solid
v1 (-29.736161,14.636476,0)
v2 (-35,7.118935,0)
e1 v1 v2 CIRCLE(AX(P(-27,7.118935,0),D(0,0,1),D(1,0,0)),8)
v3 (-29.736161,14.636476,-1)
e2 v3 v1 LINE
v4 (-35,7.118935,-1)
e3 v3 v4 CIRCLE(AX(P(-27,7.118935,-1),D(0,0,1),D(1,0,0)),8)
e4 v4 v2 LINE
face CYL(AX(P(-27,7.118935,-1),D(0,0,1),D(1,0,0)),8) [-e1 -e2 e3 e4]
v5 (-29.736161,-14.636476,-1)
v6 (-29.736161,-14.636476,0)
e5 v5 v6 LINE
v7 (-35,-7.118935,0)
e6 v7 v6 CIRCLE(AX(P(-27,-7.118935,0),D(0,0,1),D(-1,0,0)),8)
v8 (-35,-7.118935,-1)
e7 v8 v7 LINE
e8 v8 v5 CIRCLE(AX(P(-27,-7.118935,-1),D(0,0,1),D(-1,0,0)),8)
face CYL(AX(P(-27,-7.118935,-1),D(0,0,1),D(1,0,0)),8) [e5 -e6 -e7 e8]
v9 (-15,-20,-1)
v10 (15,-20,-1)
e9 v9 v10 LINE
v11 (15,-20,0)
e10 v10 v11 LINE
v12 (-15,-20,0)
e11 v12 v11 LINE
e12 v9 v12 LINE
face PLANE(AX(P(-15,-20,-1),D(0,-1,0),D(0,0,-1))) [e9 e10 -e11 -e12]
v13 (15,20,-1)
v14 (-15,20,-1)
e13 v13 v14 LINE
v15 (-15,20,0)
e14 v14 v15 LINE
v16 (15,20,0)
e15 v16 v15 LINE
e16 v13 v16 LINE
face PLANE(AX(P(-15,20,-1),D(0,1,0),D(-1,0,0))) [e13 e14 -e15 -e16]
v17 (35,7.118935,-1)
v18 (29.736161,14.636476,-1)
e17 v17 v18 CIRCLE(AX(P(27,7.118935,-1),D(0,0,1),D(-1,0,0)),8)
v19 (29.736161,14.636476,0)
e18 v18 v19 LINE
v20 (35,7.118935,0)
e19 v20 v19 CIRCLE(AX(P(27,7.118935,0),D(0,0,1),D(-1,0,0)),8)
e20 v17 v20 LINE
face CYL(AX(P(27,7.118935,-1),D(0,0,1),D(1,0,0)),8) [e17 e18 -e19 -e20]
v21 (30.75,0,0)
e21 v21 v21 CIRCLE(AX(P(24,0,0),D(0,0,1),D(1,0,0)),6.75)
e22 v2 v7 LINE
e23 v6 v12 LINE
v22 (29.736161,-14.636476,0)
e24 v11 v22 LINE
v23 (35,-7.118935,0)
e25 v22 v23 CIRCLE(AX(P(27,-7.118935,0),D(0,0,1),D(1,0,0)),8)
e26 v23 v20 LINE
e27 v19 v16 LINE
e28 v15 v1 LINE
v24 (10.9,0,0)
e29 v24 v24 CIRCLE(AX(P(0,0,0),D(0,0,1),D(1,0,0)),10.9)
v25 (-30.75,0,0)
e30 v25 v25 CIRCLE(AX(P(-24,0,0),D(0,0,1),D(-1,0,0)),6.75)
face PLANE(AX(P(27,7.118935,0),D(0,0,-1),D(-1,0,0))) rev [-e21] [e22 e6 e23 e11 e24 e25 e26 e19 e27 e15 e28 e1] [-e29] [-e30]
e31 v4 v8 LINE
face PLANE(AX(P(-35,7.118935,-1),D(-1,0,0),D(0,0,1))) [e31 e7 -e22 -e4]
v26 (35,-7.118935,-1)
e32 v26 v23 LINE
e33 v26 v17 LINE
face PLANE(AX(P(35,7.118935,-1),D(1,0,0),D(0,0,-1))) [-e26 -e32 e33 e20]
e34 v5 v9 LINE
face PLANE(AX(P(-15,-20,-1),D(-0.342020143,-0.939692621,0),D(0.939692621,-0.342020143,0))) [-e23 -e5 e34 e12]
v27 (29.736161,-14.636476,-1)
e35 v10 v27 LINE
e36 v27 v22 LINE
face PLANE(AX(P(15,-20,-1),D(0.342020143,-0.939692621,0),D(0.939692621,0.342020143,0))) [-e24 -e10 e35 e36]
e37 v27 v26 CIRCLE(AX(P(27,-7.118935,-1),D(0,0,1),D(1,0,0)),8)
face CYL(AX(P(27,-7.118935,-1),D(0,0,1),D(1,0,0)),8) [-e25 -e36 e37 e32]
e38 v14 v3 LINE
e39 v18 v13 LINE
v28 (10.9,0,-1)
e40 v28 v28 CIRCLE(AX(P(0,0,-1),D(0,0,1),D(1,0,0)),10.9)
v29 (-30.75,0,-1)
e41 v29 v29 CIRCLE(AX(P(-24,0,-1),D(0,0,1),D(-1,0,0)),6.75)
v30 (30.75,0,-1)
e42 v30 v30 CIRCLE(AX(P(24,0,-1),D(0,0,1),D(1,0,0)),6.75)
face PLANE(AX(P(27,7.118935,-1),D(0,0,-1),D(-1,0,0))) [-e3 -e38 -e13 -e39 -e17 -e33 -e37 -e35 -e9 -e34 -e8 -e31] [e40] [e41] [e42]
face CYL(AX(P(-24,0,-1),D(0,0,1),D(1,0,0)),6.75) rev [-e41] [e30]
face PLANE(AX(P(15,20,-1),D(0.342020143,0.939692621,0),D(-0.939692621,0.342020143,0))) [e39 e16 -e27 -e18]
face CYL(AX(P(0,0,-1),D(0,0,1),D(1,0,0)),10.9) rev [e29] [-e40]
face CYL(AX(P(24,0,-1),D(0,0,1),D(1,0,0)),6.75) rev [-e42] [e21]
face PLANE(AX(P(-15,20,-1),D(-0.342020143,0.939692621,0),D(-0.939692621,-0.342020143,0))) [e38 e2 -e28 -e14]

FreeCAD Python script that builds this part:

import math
import FreeCAD as App
import Part
import Sketcher
Q = App.Units.Quantity

doc = App.newDocument("Part")
body = doc.addObject("PartDesign::Body", "Body")

# Sketch on XY plane
sketch1 = body.newObject("Sketcher::SketchObject", "Sketch")
sketch1.AttachmentSupport = (doc.getObject("XY_Plane"), [""])
sketch1.MapMode = "FlatFace"
sketch1.addGeometry(Part.LineSegment(App.Vector(15, 20, 0), App.Vector(-15, 20, 0)), False)
sketch1.addGeometry(Part.LineSegment(App.Vector(-15, 20, 0), App.Vector(-30, 15, 0)), False)
sketch1.addGeometry(Part.ArcOfCircle(Part.Circle(App.Vector(-27, 7, 0), App.Vector(0, 0, 1), 8), math.radians(110), math.radians(180)), False)
sketch1.addGeometry(Part.LineSegment(App.Vector(-35, 7, 0), App.Vector(-35, -7, 0)), False)
sketch1.addGeometry(Part.ArcOfCircle(Part.Circle(App.Vector(-27, -7, 0), App.Vector(0, 0, 1), 8), math.radians(180), math.radians(250)), False)
sketch1.addGeometry(Part.LineSegment(App.Vector(-30, -15, 0), App.Vector(-15, -20, 0)), False)
sketch1.addGeometry(Part.LineSegment(App.Vector(-15, -20, 0), App.Vector(15, -20, 0)), False)
sketch1.addGeometry(Part.LineSegment(App.Vector(15, -20, 0), App.Vector(30, -15, 0)), False)
sketch1.addGeometry(Part.ArcOfCircle(Part.Circle(App.Vector(27, -7, 0), App.Vector(0, 0, 1), 8), math.radians(-70), math.radians(0)), False)
sketch1.addGeometry(Part.LineSegment(App.Vector(35, -7, 0), App.Vector(35, 7, 0)), False)
sketch1.addGeometry(Part.ArcOfCircle(Part.Circle(App.Vector(27, 7, 0), App.Vector(0, 0, 1), 8), math.radians(0), math.radians(70)), False)
sketch1.addGeometry(Part.LineSegment(App.Vector(30, 15, 0), App.Vector(15, 20, 0)), False)
sketch1.addGeometry(Part.Circle(App.Vector(24, 0, 0), App.Vector(0, 0, 1), 7), False)
sketch1.addGeometry(Part.Circle(App.Vector(0, 0, 0), App.Vector(0, 0, 1), 11), False)
sketch1.addGeometry(Part.Circle(App.Vector(-24, 0, 0), App.Vector(0, 0, 1), 7), False)
sketch1.addConstraint(Sketcher.Constraint("Coincident", 0, 2, 1, 1))
sketch1.addConstraint(Sketcher.Constraint("Tangent", 1, 2, 2, 1))
sketch1.addConstraint(Sketcher.Constraint("Tangent", 2, 2, 3, 1))
sketch1.addConstraint(Sketcher.Constraint("Tangent", 3, 2, 4, 1))
sketch1.addConstraint(Sketcher.Constraint("Tangent", 4, 2, 5, 1))
sketch1.addConstraint(Sketcher.Constraint("Coincident", 5, 2, 6, 1))
sketch1.addConstraint(Sketcher.Constraint("Coincident", 6, 2, 7, 1))
sketch1.addConstraint(Sketcher.Constraint("Tangent", 7, 2, 8, 1))
sketch1.addConstraint(Sketcher.Constraint("Tangent", 8, 2, 9, 1))
sketch1.addConstraint(Sketcher.Constraint("Tangent", 9, 2, 10, 1))
sketch1.addConstraint(Sketcher.Constraint("Tangent", 10, 2, 11, 1))
sketch1.addConstraint(Sketcher.Constraint("Coincident", 11, 2, 0, 1))
sketch1.addConstraint(Sketcher.Constraint("Horizontal", 0))
sketch1.addConstraint(Sketcher.Constraint("Vertical", 3))
sketch1.addConstraint(Sketcher.Constraint("Horizontal", 6))
sketch1.addConstraint(Sketcher.Constraint("Vertical", 9))
sketch1.addConstraint(Sketcher.Constraint("Coincident", 13, 3, -1, 1))
sketch1.addConstraint(Sketcher.Constraint("Equal", 2, 4))
sketch1.addConstraint(Sketcher.Constraint("Equal", 4, 8))
sketch1.addConstraint(Sketcher.Constraint("Equal", 8, 10))
sketch1.addConstraint(Sketcher.Constraint("Equal", 12, 14))
sketch1.addConstraint(Sketcher.Constraint("Symmetric", 2, 3, 8, 3, -1, 1))
sketch1.addConstraint(Sketcher.Constraint("Symmetric", 12, 3, 14, 3, -1, 1))
sketch1.addConstraint(Sketcher.Constraint("Symmetric", 0, 2, 6, 2, -1, 1))
sketch1.addConstraint(Sketcher.Constraint("Symmetric", 4, 2, 10, 2, -1, 1))
sketch1.addConstraint(Sketcher.Constraint("Symmetric", 4, 2, 7, 2, -2))
sketch1.addConstraint(Sketcher.Constraint("PointOnObject", 12, 3, -1))
sketch1.addConstraint(Sketcher.Constraint("Radius", 2, Q("8 mm")))
sketch1.addConstraint(Sketcher.Constraint("Diameter", 12, Q("13.5 mm")))
sketch1.addConstraint(Sketcher.Constraint("Diameter", 13, Q("21.8 mm")))
sketch1.addConstraint(Sketcher.Constraint("DistanceX", 0, 2, 0, 1, Q("30 mm")))
sketch1.addConstraint(Sketcher.Constraint("Angle", 1, Q("-160 deg")))
sketch1.addConstraint(Sketcher.Constraint("DistanceX", 2, 3, -1, 1, Q("27 mm")))
sketch1.addConstraint(Sketcher.Constraint("DistanceX", -1, 1, 12, 3, Q("24 mm")))
sketch1.addConstraint(Sketcher.Constraint("DistanceY", -1, 1, 0, 2, Q("20 mm")))
pad1 = body.newObject("PartDesign::Pad", "Pad")
pad1.Profile = sketch1
pad1.Length = 1
pad1.Reversed = True

doc.recompute()
